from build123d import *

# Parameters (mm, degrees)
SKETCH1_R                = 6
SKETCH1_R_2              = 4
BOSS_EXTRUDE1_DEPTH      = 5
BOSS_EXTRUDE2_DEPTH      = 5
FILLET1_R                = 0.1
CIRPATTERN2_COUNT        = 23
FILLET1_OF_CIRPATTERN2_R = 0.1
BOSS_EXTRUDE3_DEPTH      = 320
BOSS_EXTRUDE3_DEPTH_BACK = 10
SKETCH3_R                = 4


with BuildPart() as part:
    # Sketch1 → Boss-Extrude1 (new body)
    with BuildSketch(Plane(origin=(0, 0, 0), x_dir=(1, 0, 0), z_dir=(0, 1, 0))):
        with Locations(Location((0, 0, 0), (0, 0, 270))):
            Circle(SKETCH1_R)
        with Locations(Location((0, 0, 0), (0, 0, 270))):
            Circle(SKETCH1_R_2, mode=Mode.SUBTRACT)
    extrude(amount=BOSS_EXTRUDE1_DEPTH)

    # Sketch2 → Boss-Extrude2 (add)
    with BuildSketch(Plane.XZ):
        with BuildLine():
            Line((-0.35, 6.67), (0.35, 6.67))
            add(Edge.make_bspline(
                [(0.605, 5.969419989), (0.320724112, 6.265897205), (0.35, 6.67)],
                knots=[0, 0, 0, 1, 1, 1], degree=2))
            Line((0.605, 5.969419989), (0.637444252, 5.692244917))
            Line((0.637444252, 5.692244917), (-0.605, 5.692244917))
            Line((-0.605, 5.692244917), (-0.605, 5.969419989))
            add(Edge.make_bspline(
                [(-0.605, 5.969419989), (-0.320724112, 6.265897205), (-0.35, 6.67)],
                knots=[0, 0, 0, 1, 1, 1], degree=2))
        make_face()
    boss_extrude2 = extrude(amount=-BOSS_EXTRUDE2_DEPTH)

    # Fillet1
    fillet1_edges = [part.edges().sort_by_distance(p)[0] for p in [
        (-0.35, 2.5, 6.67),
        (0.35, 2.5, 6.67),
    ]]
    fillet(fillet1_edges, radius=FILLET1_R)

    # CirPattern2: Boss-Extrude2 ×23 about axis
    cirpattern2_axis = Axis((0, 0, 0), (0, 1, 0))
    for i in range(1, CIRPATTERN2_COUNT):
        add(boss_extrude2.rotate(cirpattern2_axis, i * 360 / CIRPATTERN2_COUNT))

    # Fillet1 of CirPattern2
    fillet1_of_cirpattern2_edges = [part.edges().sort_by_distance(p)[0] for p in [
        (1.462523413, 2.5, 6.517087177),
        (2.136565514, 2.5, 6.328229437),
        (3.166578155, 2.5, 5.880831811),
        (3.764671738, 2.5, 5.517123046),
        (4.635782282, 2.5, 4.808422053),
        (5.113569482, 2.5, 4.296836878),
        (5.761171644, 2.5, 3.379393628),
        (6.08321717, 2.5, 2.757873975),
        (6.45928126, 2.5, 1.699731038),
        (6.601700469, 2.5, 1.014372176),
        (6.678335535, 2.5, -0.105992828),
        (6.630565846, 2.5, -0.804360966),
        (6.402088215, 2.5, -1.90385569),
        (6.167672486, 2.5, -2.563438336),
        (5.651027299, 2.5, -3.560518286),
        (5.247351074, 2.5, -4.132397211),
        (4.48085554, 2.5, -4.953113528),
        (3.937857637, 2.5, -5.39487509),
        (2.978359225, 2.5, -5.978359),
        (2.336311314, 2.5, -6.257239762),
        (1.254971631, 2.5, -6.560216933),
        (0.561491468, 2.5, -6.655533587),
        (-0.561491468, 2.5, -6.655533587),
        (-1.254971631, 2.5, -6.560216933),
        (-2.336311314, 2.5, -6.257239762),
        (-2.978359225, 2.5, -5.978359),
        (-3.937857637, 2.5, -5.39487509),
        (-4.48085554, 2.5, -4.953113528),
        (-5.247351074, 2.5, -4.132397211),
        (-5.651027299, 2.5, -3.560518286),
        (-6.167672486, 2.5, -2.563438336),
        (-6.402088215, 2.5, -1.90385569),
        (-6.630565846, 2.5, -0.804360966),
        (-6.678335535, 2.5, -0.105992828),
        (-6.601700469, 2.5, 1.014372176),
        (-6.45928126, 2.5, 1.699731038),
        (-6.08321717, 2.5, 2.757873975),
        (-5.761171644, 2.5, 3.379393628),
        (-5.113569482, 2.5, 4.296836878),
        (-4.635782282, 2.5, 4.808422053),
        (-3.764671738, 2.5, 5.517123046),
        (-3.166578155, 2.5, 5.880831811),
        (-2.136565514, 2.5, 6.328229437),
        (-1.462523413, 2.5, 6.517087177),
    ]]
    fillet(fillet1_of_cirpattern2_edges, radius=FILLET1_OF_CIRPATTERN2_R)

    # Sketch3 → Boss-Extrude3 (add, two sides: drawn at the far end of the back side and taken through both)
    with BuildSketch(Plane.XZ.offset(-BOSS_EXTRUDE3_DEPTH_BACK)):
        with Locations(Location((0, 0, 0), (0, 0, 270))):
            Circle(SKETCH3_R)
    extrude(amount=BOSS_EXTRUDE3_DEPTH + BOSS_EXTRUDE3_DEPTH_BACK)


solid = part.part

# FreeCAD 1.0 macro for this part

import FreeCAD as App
import Part
import Sketcher


def edges_at(feature, points):
    """Names of the edges that pass closest to the given points."""
    edges = feature.Shape.Edges
    near = lambda p: min(range(len(edges)), key=lambda i: edges[i].distToShape(Part.Vertex(*p))[0])
    return sorted({f"Edge{near(p) + 1}" for p in points})

doc = App.newDocument("Part")
body = doc.addObject("PartDesign::Body", "Body")

sketch1 = body.newObject("Sketcher::SketchObject", "Sketch")
sketch1.AttachmentSupport = (doc.getObject("XZ_Plane"), [""])
sketch1.MapMode = "FlatFace"
sketch1.addGeometry([
    Part.Circle(App.Vector(0, 0, 0), App.Vector(0, 0, 1), 6),
    Part.Circle(App.Vector(0, 0, 0), App.Vector(0, 0, 1), 4),
], False)
sketch1.addConstraint([
    Sketcher.Constraint("Coincident", 0, 3, -1, 1),
    Sketcher.Constraint("Coincident", 1, 3, -1, 1),
    Sketcher.Constraint("Diameter", 0, 12.0),
    Sketcher.Constraint("Diameter", 1, 8.0),
])
pad1 = body.newObject("PartDesign::Pad", "Pad")
pad1.Profile = sketch1
pad1.Length = 5
pad1.Reversed = True

sketch2 = body.newObject("Sketcher::SketchObject", "Sketch001")
sketch2.AttachmentSupport = (doc.getObject("XZ_Plane"), [""])
sketch2.MapMode = "FlatFace"
sketch2.addGeometry([
    Part.LineSegment(App.Vector(0.35, 6.67, 0), App.Vector(-0.35, 6.67, 0)),
    Part.BSplineCurve([App.Vector(-0.605, 5.96942, 0), App.Vector(-0.320724, 6.265897, 0), App.Vector(-0.35, 6.67, 0)], [3, 3], [0, 1], False, 2, [1, 1, 1], False),
    Part.LineSegment(App.Vector(-0.605, 5.96942, 0), App.Vector(-0.605, 5.692245, 0)),
    Part.LineSegment(App.Vector(-0.605, 5.692245, 0), App.Vector(0.637444, 5.692245, 0)),
    Part.LineSegment(App.Vector(0.637444, 5.692245, 0), App.Vector(0.605, 5.96942, 0)),
    Part.BSplineCurve([App.Vector(0.605, 5.96942, 0), App.Vector(0.320724, 6.265897, 0), App.Vector(0.35, 6.67, 0)], [3, 3], [0, 1], False, 2, [1, 1, 1], False),
], False)
sketch2.addConstraint([
    Sketcher.Constraint("Block", 1),
    Sketcher.Constraint("Block", 5),
    Sketcher.Constraint("Coincident", 0, 2, 1, 2),
    Sketcher.Constraint("Coincident", 1, 1, 2, 1),
    Sketcher.Constraint("Coincident", 2, 2, 3, 1),
    Sketcher.Constraint("Coincident", 3, 2, 4, 1),
    Sketcher.Constraint("Coincident", 4, 2, 5, 1),
    Sketcher.Constraint("Coincident", 5, 2, 0, 1),
    Sketcher.Constraint("Vertical", 2),
    Sketcher.Constraint("Horizontal", 3),
    Sketcher.Constraint("DistanceX", 3, 1, 3, 2, 1.242444),
    Sketcher.Constraint("DistanceY", 2, 2, 2, 1, 0.277175),
])
pad2 = body.newObject("PartDesign::Pad", "Pad001")
pad2.Profile = sketch2
pad2.Length = 5
pad2.Reversed = True
doc.recompute()

fillet = body.newObject("PartDesign::Fillet", "Fillet")
fillet.Base = (pad2, edges_at(pad2, [(-0.35, 2.5, 6.67), (0.35, 2.5, 6.67)]))
fillet.Radius = 0.1
doc.recompute()

polarpattern = body.newObject("PartDesign::PolarPattern", "PolarPattern")
polarpattern.Originals = [pad2]
polarpattern.Axis = (doc.getObject("Y_Axis"), [""])
polarpattern.Angle = 360
polarpattern.Occurrences = 23
body.Tip = polarpattern
doc.recompute()

fillet2 = body.newObject("PartDesign::Fillet", "Fillet001")
fillet2.Base = (polarpattern, edges_at(polarpattern, [
    (1.463, 2.5, 6.517),
    (2.137, 2.5, 6.328),
    (3.167, 2.5, 5.881),
    (3.765, 2.5, 5.517),
    (4.636, 2.5, 4.808),
    (5.114, 2.5, 4.297),
    (5.761, 2.5, 3.379),
    (6.083, 2.5, 2.758),
    (6.459, 2.5, 1.7),
    (6.602, 2.5, 1.014),
    (6.678, 2.5, -0.106),
    (6.631, 2.5, -0.804),
    (6.402, 2.5, -1.904),
    (6.168, 2.5, -2.563),
    (5.651, 2.5, -3.561),
    (5.247, 2.5, -4.132),
    (4.481, 2.5, -4.953),
    (3.938, 2.5, -5.395),
    (2.978, 2.5, -5.978),
    (2.336, 2.5, -6.257),
    (1.255, 2.5, -6.56),
    (0.561, 2.5, -6.656),
    (-0.561, 2.5, -6.656),
    (-1.255, 2.5, -6.56),
    (-2.336, 2.5, -6.257),
    (-2.978, 2.5, -5.978),
    (-3.938, 2.5, -5.395),
    (-4.481, 2.5, -4.953),
    (-5.247, 2.5, -4.132),
    (-5.651, 2.5, -3.561),
    (-6.168, 2.5, -2.563),
    (-6.402, 2.5, -1.904),
    (-6.631, 2.5, -0.804),
    (-6.678, 2.5, -0.106),
    (-6.602, 2.5, 1.014),
    (-6.459, 2.5, 1.7),
    (-6.083, 2.5, 2.758),
    (-5.761, 2.5, 3.379),
    (-5.114, 2.5, 4.297),
    (-4.636, 2.5, 4.808),
    (-3.765, 2.5, 5.517),
    (-3.167, 2.5, 5.881),
    (-2.137, 2.5, 6.328),
    (-1.463, 2.5, 6.517),
]))
fillet2.Radius = 0.1

sketch3 = body.newObject("Sketcher::SketchObject", "Sketch002")
sketch3.AttachmentSupport = (doc.getObject("XZ_Plane"), [""])
sketch3.MapMode = "FlatFace"
sketch3.addGeometry(Part.Circle(App.Vector(0, 0, 0), App.Vector(0, 0, 1), 4), False)
sketch3.addConstraint([
    Sketcher.Constraint("Coincident", 0, 3, -1, 1),
    Sketcher.Constraint("Diameter", 0, 8.0),
])
pad3 = body.newObject("PartDesign::Pad", "Pad002")
pad3.Profile = sketch3
pad3.Type = "TwoLengths"
pad3.Length = 320
pad3.Length2 = 10

doc.recompute()
